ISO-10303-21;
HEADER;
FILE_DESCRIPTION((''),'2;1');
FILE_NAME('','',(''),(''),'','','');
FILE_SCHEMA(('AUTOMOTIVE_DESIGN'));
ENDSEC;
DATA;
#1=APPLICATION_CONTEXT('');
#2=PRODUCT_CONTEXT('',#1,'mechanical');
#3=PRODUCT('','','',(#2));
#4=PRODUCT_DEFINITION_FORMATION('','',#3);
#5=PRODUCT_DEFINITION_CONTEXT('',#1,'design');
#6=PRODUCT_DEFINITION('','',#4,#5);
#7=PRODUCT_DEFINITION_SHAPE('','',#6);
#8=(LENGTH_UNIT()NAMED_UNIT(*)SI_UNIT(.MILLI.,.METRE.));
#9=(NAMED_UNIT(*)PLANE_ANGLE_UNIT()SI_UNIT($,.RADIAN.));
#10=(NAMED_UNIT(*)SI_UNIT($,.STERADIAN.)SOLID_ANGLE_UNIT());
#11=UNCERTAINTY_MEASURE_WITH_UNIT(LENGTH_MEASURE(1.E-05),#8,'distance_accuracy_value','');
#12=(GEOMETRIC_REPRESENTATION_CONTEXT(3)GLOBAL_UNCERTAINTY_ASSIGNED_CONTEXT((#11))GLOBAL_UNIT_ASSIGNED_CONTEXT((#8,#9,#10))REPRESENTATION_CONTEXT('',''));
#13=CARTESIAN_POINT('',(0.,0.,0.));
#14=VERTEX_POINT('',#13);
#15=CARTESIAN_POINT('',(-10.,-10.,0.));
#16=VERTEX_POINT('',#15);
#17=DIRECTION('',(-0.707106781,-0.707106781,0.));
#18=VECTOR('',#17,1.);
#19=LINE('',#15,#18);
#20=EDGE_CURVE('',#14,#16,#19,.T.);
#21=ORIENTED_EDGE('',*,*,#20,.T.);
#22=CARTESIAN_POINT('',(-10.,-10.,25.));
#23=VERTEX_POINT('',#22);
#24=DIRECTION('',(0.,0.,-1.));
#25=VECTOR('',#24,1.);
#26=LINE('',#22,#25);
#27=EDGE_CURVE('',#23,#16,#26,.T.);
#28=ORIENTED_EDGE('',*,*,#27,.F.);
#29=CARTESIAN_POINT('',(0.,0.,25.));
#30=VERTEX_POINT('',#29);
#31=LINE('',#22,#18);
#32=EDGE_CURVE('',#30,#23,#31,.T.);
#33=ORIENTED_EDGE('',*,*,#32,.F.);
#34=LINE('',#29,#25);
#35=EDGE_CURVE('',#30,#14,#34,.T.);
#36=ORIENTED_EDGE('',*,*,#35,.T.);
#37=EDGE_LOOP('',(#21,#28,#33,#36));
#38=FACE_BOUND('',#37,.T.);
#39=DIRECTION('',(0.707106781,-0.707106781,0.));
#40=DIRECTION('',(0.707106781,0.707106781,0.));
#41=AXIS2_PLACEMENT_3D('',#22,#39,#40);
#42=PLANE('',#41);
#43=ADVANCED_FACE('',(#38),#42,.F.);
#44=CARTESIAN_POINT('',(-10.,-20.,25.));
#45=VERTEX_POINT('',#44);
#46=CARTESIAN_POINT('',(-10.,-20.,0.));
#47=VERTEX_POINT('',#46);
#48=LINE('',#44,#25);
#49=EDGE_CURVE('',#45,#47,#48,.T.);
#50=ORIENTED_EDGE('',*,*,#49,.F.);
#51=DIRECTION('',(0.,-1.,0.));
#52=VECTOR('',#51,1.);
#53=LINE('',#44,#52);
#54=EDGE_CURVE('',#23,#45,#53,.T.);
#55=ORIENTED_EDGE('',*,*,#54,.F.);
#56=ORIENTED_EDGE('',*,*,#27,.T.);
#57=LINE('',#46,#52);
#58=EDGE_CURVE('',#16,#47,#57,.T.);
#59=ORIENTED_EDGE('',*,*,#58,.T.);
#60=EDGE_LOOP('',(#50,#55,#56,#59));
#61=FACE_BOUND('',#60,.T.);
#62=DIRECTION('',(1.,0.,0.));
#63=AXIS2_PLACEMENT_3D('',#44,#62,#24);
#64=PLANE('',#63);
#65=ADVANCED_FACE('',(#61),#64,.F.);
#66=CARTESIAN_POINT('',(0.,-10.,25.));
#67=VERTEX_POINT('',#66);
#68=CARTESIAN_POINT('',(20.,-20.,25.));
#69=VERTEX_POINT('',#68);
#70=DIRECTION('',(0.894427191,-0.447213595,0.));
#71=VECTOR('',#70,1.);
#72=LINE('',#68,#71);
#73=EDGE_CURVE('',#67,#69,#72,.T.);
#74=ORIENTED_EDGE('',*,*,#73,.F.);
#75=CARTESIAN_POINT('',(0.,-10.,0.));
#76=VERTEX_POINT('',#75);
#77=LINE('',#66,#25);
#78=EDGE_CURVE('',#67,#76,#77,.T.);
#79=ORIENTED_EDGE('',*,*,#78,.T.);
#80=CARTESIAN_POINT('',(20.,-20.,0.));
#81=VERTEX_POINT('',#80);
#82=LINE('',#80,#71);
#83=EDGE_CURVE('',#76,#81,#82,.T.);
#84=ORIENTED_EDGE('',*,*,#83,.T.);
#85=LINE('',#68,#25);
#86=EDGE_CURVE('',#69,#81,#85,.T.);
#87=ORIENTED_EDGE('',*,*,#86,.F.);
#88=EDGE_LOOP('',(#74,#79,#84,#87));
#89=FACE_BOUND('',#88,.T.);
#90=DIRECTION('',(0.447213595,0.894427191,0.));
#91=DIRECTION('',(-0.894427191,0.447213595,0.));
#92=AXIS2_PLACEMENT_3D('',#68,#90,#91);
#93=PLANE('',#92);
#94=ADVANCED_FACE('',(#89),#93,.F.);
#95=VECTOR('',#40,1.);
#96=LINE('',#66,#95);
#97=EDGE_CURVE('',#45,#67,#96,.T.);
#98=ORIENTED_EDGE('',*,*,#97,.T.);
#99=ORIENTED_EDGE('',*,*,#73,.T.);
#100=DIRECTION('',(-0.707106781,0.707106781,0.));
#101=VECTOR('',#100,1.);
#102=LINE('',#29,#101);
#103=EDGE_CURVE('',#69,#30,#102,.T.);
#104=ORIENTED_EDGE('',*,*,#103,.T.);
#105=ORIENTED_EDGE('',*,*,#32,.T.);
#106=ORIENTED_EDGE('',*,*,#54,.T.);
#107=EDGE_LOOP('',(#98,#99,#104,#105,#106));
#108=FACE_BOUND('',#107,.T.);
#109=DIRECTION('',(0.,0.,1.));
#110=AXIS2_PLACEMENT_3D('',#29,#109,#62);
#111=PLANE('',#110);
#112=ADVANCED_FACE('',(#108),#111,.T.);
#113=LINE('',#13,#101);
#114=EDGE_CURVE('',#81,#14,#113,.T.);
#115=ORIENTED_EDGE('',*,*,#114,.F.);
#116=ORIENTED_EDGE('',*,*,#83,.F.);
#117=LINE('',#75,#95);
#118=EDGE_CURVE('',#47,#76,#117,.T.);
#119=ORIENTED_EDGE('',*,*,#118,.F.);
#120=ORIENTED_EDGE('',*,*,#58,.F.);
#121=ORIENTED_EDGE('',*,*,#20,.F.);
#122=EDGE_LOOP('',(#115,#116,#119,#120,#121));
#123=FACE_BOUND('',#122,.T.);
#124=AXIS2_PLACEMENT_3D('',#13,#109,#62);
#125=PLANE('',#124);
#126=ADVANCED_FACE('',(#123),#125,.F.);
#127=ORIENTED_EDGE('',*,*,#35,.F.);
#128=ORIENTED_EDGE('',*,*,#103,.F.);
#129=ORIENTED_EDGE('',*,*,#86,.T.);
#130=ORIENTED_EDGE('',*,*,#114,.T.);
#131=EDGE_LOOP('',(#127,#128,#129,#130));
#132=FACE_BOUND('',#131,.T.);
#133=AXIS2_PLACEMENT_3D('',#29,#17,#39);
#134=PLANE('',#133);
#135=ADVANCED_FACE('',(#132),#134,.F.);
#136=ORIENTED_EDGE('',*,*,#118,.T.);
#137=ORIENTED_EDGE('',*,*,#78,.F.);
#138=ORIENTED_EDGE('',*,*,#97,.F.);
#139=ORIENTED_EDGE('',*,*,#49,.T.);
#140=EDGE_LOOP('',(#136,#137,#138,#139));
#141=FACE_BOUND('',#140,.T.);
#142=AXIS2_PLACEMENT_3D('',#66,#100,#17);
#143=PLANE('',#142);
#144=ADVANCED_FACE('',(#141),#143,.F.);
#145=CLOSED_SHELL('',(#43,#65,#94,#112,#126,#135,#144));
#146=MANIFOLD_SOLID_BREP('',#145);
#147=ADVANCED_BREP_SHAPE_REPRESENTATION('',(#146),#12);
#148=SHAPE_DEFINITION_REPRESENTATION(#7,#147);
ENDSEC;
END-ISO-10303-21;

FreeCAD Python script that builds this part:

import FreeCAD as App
import Part
import Sketcher
Q = App.Units.Quantity


def add_polygon(sketch, points):
    """Adds a closed chain of lines whose ends are joined by coincident constraints."""
    first, n = sketch.GeometryCount, len(points)
    for a, b in zip(points, points[1:] + points[:1]):
        sketch.addGeometry(Part.LineSegment(App.Vector(*a, 0), App.Vector(*b, 0)), False)
    for i in range(n):
        sketch.addConstraint(Sketcher.Constraint("Coincident", first + i, 2, first + (i + 1) % n, 1))

doc = App.newDocument("Part")
body = doc.addObject("PartDesign::Body", "Body")

# Sketch on XY plane
sketch1 = body.newObject("Sketcher::SketchObject", "Sketch")
sketch1.AttachmentSupport = (doc.getObject("XY_Plane"), [""])
sketch1.MapMode = "FlatFace"
add_polygon(sketch1, [(0, 0), (-10, -10), (-10, -20), (0, -10), (20, -20)])  # lines 0-4
sketch1.addConstraint([
    Sketcher.Constraint("Vertical", 1),
    Sketcher.Constraint("Coincident", 4, 2, -1, 1),
    Sketcher.Constraint("PointOnObject", 2, 2, -2),
    Sketcher.Constraint("Parallel", 0, 2),
    Sketcher.Constraint("Perpendicular", 2, 4),
    Sketcher.Constraint("Horizontal", 0, 2, 2, 2),
    Sketcher.Constraint("Horizontal", 1, 2, 3, 2),
    Sketcher.Constraint("DistanceY", 1, 2, 1, 1, Q("10 mm")),
    Sketcher.Constraint("Angle", 0, Q("-135 deg")),
])
pad1 = body.newObject("PartDesign::Pad", "Pad")
pad1.Profile = sketch1
pad1.Length = 25

doc.recompute()
